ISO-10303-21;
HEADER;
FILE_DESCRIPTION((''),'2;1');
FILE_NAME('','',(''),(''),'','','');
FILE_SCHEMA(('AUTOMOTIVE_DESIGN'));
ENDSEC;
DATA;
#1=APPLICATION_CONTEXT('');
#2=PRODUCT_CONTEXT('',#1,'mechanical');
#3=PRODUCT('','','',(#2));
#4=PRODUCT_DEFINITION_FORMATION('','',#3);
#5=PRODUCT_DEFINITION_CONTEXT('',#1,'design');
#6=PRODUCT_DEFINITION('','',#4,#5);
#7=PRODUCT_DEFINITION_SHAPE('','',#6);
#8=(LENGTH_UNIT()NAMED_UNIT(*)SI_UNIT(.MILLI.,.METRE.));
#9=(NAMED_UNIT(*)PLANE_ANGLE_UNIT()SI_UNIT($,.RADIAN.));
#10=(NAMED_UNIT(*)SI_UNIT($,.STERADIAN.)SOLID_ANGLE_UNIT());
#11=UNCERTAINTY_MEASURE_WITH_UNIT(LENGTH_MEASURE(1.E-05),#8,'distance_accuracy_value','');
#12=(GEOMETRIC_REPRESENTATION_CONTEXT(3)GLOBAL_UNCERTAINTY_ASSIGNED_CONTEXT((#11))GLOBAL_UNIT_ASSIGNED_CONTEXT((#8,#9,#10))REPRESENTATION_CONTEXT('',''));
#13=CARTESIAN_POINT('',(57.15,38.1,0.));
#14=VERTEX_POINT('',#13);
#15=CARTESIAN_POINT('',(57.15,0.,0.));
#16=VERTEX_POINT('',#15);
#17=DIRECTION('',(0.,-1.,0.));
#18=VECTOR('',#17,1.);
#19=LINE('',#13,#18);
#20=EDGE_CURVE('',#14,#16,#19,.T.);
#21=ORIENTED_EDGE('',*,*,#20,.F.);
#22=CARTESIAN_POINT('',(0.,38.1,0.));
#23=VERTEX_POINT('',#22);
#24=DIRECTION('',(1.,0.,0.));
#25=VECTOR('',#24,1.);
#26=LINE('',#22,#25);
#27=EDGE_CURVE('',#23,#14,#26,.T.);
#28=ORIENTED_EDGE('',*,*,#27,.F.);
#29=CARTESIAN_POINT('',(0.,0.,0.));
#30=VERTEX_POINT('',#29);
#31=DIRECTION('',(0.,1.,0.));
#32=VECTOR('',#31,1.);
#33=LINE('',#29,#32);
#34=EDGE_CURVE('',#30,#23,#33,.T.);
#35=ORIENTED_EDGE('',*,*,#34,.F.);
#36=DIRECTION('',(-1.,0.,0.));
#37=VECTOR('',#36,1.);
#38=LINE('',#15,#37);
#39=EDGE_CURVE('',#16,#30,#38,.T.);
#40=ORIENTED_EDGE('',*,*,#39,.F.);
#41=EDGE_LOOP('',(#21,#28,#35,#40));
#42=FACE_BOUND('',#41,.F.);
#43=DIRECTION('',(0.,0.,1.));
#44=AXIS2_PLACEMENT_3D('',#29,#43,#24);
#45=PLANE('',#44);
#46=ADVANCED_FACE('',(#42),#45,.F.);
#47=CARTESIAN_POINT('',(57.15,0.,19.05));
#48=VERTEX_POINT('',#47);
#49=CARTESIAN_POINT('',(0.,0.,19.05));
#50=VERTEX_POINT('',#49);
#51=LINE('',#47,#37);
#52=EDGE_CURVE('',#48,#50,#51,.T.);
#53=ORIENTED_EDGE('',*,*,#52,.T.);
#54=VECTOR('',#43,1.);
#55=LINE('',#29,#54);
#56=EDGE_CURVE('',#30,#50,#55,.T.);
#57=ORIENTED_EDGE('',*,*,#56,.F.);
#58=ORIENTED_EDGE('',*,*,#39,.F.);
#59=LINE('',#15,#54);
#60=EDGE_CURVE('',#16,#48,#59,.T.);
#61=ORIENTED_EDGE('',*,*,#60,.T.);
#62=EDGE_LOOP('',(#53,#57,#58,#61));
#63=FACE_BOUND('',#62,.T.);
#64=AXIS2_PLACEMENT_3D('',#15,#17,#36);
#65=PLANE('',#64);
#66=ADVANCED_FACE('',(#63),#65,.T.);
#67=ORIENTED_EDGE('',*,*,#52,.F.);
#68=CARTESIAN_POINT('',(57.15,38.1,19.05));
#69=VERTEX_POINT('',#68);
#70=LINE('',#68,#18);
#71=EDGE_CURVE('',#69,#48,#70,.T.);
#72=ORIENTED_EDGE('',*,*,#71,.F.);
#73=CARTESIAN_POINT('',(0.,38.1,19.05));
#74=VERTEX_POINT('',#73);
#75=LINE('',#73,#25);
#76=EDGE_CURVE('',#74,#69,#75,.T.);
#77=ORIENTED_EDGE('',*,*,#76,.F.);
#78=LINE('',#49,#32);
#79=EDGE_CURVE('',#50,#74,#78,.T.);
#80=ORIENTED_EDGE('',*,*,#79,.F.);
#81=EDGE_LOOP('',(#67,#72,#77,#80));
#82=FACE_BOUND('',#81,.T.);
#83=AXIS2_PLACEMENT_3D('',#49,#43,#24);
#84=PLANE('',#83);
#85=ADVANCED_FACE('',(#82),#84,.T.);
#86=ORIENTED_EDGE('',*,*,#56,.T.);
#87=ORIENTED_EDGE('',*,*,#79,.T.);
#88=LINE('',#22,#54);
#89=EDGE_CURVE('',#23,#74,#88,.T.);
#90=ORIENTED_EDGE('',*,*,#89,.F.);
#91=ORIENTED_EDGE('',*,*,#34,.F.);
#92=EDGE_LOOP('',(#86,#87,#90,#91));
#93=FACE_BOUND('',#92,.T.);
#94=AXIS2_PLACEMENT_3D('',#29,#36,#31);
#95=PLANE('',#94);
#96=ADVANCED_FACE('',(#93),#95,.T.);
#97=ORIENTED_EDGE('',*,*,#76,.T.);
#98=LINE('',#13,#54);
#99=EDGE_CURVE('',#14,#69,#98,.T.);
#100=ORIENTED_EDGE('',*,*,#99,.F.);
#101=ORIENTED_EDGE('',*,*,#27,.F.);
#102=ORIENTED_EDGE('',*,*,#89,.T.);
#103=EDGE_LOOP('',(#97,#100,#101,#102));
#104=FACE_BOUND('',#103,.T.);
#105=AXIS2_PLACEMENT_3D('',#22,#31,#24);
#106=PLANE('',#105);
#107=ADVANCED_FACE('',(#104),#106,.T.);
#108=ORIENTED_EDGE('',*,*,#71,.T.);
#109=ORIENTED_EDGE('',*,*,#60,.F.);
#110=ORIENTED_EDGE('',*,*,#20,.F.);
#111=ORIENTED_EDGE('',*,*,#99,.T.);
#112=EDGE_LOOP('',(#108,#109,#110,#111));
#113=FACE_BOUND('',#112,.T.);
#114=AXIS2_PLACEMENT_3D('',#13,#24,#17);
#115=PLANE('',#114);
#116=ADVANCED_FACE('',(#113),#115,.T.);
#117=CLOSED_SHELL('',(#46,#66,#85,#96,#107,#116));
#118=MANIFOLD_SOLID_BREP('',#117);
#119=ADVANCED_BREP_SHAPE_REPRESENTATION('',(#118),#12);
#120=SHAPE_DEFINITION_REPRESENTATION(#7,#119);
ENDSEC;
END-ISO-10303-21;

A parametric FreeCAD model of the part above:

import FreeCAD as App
import Part
import Sketcher
Q = App.Units.Quantity


def add_polygon(sketch, points):
    """Adds a closed chain of lines whose ends are joined by coincident constraints."""
    first, n = sketch.GeometryCount, len(points)
    for a, b in zip(points, points[1:] + points[:1]):
        sketch.addGeometry(Part.LineSegment(App.Vector(*a, 0), App.Vector(*b, 0)), False)
    for i in range(n):
        sketch.addConstraint(Sketcher.Constraint("Coincident", first + i, 2, first + (i + 1) % n, 1))

doc = App.newDocument("Part")
body = doc.addObject("PartDesign::Body", "Body")

# Sketch on XY plane
sketch1 = body.newObject("Sketcher::SketchObject", "Sketch")
sketch1.AttachmentSupport = (doc.getObject("XY_Plane"), [""])
sketch1.MapMode = "FlatFace"
add_polygon(sketch1, [(0, 38), (0, 0), (57, 0), (57, 38)])  # lines 0-3
sketch1.addConstraint([
    Sketcher.Constraint("Vertical", 0),
    Sketcher.Constraint("Horizontal", 1),
    Sketcher.Constraint("Vertical", 2),
    Sketcher.Constraint("Horizontal", 3),
    Sketcher.Constraint("Coincident", 0, 2, -1, 1),
    Sketcher.Constraint("DistanceY", 0, 2, 0, 1, Q("1.5 in")),
    Sketcher.Constraint("DistanceX", 1, 1, 1, 2, Q("2.25 in")),
])
pad1 = body.newObject("PartDesign::Pad", "Pad")
pad1.Profile = sketch1
pad1.Length = Q("0.75 in")

doc.recompute()
